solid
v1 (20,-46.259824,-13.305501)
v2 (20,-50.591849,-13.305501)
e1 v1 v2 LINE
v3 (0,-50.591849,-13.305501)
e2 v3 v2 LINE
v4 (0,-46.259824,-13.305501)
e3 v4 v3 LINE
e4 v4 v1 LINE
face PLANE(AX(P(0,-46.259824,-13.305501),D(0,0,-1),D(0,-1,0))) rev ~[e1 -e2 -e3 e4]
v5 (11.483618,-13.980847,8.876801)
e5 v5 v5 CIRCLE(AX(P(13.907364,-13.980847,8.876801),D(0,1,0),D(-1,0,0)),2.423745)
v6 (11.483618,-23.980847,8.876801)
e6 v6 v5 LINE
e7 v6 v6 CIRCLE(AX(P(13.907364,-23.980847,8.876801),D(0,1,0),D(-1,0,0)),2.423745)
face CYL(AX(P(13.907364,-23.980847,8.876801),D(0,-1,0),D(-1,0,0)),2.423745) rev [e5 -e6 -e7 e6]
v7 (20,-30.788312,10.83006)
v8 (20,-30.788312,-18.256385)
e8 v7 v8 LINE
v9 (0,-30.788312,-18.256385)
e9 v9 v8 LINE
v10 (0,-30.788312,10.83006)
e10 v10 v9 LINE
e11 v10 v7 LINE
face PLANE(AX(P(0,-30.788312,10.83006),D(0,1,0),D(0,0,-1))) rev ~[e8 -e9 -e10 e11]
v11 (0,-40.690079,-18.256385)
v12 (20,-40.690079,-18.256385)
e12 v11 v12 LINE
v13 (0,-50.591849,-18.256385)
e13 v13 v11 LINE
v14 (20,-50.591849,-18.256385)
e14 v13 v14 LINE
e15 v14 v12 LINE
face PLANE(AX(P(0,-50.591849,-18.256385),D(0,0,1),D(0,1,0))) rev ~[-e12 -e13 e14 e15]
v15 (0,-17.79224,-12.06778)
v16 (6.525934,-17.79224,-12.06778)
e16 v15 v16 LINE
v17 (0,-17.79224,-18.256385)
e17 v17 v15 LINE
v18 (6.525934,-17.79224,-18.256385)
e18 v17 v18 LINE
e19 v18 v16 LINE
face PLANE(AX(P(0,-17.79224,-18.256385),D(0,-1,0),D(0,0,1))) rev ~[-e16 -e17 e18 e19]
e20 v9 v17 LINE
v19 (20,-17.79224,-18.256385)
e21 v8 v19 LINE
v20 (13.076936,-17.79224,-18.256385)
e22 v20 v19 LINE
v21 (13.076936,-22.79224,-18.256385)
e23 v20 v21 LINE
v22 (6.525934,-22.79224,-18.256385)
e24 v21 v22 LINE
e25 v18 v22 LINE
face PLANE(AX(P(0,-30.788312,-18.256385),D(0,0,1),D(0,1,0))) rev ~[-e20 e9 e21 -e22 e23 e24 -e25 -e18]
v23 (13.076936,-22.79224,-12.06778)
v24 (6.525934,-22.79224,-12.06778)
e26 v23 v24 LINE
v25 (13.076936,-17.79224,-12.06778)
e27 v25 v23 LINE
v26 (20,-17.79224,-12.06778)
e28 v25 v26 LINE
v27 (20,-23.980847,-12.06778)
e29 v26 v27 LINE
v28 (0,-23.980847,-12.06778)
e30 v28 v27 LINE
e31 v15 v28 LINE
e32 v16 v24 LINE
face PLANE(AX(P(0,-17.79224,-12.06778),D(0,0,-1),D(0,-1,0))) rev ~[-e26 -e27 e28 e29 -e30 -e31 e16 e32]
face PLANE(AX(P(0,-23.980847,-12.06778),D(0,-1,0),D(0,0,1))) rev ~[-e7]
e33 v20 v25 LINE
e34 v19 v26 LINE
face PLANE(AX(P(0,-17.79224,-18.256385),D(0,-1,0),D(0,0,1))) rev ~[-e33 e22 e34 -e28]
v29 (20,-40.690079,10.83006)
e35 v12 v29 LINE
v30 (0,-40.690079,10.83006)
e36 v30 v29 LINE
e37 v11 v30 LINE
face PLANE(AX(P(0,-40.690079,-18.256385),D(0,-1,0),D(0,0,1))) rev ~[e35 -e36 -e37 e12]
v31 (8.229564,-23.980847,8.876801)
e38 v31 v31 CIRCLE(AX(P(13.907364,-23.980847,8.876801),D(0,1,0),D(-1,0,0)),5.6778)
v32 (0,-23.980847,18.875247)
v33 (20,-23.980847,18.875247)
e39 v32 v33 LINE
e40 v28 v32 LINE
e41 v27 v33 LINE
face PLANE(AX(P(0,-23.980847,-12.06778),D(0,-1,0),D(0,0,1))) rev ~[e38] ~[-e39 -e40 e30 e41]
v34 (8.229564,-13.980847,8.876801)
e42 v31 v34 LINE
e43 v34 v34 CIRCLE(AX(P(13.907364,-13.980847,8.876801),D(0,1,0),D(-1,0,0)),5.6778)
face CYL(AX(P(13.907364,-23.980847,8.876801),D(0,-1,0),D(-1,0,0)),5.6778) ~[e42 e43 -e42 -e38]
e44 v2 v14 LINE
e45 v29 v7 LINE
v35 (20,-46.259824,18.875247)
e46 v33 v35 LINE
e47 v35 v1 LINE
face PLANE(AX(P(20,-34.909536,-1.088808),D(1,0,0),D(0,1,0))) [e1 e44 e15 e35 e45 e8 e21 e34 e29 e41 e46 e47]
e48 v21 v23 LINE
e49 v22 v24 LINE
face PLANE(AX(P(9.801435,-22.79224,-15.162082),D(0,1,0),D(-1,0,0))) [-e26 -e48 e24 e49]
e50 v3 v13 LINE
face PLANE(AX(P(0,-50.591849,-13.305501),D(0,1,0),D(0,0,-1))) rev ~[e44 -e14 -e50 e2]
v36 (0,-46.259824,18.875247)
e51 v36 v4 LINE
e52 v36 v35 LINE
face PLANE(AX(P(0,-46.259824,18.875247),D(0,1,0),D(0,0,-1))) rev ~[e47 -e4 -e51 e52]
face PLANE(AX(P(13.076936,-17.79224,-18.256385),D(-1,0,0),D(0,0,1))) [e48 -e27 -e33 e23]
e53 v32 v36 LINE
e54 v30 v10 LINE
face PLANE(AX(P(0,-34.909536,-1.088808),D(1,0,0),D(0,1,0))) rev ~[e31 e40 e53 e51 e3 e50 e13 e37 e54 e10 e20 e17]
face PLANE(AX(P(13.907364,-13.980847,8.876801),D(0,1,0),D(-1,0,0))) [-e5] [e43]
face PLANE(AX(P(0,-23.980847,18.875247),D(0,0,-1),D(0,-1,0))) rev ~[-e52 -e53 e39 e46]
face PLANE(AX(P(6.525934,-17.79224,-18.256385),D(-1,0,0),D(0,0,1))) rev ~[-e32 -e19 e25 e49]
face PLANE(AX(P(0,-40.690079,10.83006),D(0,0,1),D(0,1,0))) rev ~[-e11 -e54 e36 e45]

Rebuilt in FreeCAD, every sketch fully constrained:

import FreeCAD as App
import Part
import Sketcher
from FreeCAD import Vector
Q = App.Units.Quantity

doc = App.newDocument("Part")
params = doc.addObject("Spreadsheet::Sheet", "Params")
for row, (alias, value) in enumerate([
    ("pad1_length", "20 mm"),
    ("pocket1_length", "5 mm"),
    ("pad2_length", "10 mm"),
], start=1):
    params.set(f"A{row}", alias)
    params.set(f"B{row}", "=" + value)
    params.setAlias(f"B{row}", alias)

body = doc.addObject("PartDesign::Body", "Body")

sketch1 = body.newObject("Sketcher::SketchObject", "Sketch")
sketch1.AttachmentSupport = (doc.getObject("YZ_Plane"), [""])
sketch1.MapMode = "FlatFace"
sketch1.addGeometry([
    Part.LineSegment(Vector(-46.3, -13.3, 0), Vector(-50.6, -13.3, 0)),
    Part.LineSegment(Vector(-50.6, -13.3, 0), Vector(-50.6, -18.3, 0)),
    Part.LineSegment(Vector(-50.6, -18.3, 0), Vector(-40.7, -18.3, 0)),
    Part.LineSegment(Vector(-40.7, -18.3, 0), Vector(-40.7, 10.8, 0)),
    Part.LineSegment(Vector(-40.7, 10.8, 0), Vector(-30.8, 10.8, 0)),
    Part.LineSegment(Vector(-30.8, 10.8, 0), Vector(-30.8, -18.3, 0)),
    Part.LineSegment(Vector(-30.8, -18.3, 0), Vector(-17.8, -18.3, 0)),
    Part.LineSegment(Vector(-17.8, -18.3, 0), Vector(-17.8, -12.1, 0)),
    Part.LineSegment(Vector(-17.8, -12.1, 0), Vector(-24, -12.1, 0)),
    Part.LineSegment(Vector(-24, -12.1, 0), Vector(-24, 18.9, 0)),
    Part.LineSegment(Vector(-24, 18.9, 0), Vector(-46.3, 18.9, 0)),
    Part.LineSegment(Vector(-46.3, 18.9, 0), Vector(-46.3, -13.3, 0)),
], False)
sketch1.addConstraint([
    Sketcher.Constraint("Coincident", 0, 2, 1, 1),
    Sketcher.Constraint("Coincident", 1, 2, 2, 1),
    Sketcher.Constraint("Coincident", 2, 2, 3, 1),
    Sketcher.Constraint("Coincident", 3, 2, 4, 1),
    Sketcher.Constraint("Coincident", 4, 2, 5, 1),
    Sketcher.Constraint("Coincident", 5, 2, 6, 1),
    Sketcher.Constraint("Coincident", 6, 2, 7, 1),
    Sketcher.Constraint("Coincident", 7, 2, 8, 1),
    Sketcher.Constraint("Coincident", 8, 2, 9, 1),
    Sketcher.Constraint("Coincident", 9, 2, 10, 1),
    Sketcher.Constraint("Coincident", 10, 2, 11, 1),
    Sketcher.Constraint("Coincident", 11, 2, 0, 1),
    Sketcher.Constraint("Horizontal", 0),
    Sketcher.Constraint("Vertical", 1),
    Sketcher.Constraint("Horizontal", 2),
    Sketcher.Constraint("Vertical", 3),
    Sketcher.Constraint("Horizontal", 4),
    Sketcher.Constraint("Vertical", 5),
    Sketcher.Constraint("Horizontal", 6),
    Sketcher.Constraint("Vertical", 7),
    Sketcher.Constraint("Horizontal", 8),
    Sketcher.Constraint("Vertical", 9),
    Sketcher.Constraint("Horizontal", 10),
    Sketcher.Constraint("Vertical", 11),
    Sketcher.Constraint("Horizontal", 2, 2, 5, 2),
    Sketcher.Constraint("Equal", 2, 4),
    Sketcher.Constraint("Equal", 8, 7),
    Sketcher.Constraint("DistanceX", 2, 1, 2, 2, Q("9.901769 mm")),
    Sketcher.Constraint("DistanceX", 6, 1, 6, 2, Q("12.996072 mm")),
    Sketcher.Constraint("DistanceY", 0, 2, -1, 1, Q("13.305501 mm")),
    Sketcher.Constraint("DistanceX", 0, 2, 0, 1, Q("4.332025 mm")),
    Sketcher.Constraint("DistanceX", 8, 2, 8, 1, Q("6.188607 mm")),
    Sketcher.Constraint("DistanceY", 1, 2, 1, 1, Q("4.950884 mm")),
    Sketcher.Constraint("DistanceY", 3, 1, 3, 2, Q("29.086445 mm")),
    Sketcher.Constraint("DistanceY", 9, 1, 9, 2, Q("30.943027 mm")),
    Sketcher.Constraint("DistanceX", 0, 2, -1, 1, Q("50.591849 mm")),
])
pad1 = body.newObject("PartDesign::Pad", "Pad")
pad1.Profile = sketch1
pad1.setExpression("Length", "Params.pad1_length")

sketch2 = body.newObject("Sketcher::SketchObject", "Sketch001")
sketch2.AttachmentSupport = (doc.getObject("XZ_Plane"), [""])
sketch2.MapMode = "FlatFace"
sketch2.AttachmentOffset = App.Placement(Vector(0, 0, 17.79224), App.Rotation())
sketch2.addGeometry([
    Part.LineSegment(Vector(13, -12, 0), Vector(13, -18, 0)),
    Part.LineSegment(Vector(13, -18, 0), Vector(7, -18, 0)),
    Part.LineSegment(Vector(7, -18, 0), Vector(7, -12, 0)),
    Part.LineSegment(Vector(7, -12, 0), Vector(13, -12, 0)),
], False)
sketch2.addConstraint([
    Sketcher.Constraint("Coincident", 0, 2, 1, 1),
    Sketcher.Constraint("Coincident", 1, 2, 2, 1),
    Sketcher.Constraint("Coincident", 2, 2, 3, 1),
    Sketcher.Constraint("Coincident", 3, 2, 0, 1),
    Sketcher.Constraint("Vertical", 0),
    Sketcher.Constraint("Horizontal", 1),
    Sketcher.Constraint("Vertical", 2),
    Sketcher.Constraint("Horizontal", 3),
    Sketcher.Constraint("DistanceX", 1, 2, 1, 1, Q("6.551002 mm")),
    Sketcher.Constraint("DistanceY", 0, 2, 0, 1, Q("6.188605 mm")),
    Sketcher.Constraint("DistanceY", 2, 2, -1, 1, Q("12.06778 mm")),
    Sketcher.Constraint("DistanceX", -1, 1, 0, 2, Q("13.076936 mm")),
])
pocket1 = body.newObject("PartDesign::Pocket", "Pocket")
pocket1.Profile = sketch2
pocket1.setExpression("Length", "Params.pocket1_length")
pocket1.Reversed = True

sketch3 = body.newObject("Sketcher::SketchObject", "Sketch002")
sketch3.AttachmentSupport = (doc.getObject("XZ_Plane"), [""])
sketch3.MapMode = "FlatFace"
sketch3.AttachmentOffset = App.Placement(Vector(0, 0, 23.980847), App.Rotation())
sketch3.addGeometry([
    Part.Circle(Vector(13.9, 8.9, 0), Vector(0, 0, 1), 5.7),
    Part.Circle(Vector(13.9, 8.9, 0), Vector(0, 0, 1), 2.4),
], False)
sketch3.addConstraint([
    Sketcher.Constraint("Coincident", 1, 3, 0, 3),
    Sketcher.Constraint("Diameter", 0, Q("11.355599 mm")),
    Sketcher.Constraint("Diameter", 1, Q("4.847491 mm")),
    Sketcher.Constraint("DistanceY", -1, 1, 0, 3, Q("8.876801 mm")),
    Sketcher.Constraint("DistanceX", -1, 1, 0, 3, Q("13.907364 mm")),
])
pad2 = body.newObject("PartDesign::Pad", "Pad001")
pad2.Profile = sketch3
pad2.setExpression("Length", "Params.pad2_length")
pad2.Reversed = True

doc.recompute()
